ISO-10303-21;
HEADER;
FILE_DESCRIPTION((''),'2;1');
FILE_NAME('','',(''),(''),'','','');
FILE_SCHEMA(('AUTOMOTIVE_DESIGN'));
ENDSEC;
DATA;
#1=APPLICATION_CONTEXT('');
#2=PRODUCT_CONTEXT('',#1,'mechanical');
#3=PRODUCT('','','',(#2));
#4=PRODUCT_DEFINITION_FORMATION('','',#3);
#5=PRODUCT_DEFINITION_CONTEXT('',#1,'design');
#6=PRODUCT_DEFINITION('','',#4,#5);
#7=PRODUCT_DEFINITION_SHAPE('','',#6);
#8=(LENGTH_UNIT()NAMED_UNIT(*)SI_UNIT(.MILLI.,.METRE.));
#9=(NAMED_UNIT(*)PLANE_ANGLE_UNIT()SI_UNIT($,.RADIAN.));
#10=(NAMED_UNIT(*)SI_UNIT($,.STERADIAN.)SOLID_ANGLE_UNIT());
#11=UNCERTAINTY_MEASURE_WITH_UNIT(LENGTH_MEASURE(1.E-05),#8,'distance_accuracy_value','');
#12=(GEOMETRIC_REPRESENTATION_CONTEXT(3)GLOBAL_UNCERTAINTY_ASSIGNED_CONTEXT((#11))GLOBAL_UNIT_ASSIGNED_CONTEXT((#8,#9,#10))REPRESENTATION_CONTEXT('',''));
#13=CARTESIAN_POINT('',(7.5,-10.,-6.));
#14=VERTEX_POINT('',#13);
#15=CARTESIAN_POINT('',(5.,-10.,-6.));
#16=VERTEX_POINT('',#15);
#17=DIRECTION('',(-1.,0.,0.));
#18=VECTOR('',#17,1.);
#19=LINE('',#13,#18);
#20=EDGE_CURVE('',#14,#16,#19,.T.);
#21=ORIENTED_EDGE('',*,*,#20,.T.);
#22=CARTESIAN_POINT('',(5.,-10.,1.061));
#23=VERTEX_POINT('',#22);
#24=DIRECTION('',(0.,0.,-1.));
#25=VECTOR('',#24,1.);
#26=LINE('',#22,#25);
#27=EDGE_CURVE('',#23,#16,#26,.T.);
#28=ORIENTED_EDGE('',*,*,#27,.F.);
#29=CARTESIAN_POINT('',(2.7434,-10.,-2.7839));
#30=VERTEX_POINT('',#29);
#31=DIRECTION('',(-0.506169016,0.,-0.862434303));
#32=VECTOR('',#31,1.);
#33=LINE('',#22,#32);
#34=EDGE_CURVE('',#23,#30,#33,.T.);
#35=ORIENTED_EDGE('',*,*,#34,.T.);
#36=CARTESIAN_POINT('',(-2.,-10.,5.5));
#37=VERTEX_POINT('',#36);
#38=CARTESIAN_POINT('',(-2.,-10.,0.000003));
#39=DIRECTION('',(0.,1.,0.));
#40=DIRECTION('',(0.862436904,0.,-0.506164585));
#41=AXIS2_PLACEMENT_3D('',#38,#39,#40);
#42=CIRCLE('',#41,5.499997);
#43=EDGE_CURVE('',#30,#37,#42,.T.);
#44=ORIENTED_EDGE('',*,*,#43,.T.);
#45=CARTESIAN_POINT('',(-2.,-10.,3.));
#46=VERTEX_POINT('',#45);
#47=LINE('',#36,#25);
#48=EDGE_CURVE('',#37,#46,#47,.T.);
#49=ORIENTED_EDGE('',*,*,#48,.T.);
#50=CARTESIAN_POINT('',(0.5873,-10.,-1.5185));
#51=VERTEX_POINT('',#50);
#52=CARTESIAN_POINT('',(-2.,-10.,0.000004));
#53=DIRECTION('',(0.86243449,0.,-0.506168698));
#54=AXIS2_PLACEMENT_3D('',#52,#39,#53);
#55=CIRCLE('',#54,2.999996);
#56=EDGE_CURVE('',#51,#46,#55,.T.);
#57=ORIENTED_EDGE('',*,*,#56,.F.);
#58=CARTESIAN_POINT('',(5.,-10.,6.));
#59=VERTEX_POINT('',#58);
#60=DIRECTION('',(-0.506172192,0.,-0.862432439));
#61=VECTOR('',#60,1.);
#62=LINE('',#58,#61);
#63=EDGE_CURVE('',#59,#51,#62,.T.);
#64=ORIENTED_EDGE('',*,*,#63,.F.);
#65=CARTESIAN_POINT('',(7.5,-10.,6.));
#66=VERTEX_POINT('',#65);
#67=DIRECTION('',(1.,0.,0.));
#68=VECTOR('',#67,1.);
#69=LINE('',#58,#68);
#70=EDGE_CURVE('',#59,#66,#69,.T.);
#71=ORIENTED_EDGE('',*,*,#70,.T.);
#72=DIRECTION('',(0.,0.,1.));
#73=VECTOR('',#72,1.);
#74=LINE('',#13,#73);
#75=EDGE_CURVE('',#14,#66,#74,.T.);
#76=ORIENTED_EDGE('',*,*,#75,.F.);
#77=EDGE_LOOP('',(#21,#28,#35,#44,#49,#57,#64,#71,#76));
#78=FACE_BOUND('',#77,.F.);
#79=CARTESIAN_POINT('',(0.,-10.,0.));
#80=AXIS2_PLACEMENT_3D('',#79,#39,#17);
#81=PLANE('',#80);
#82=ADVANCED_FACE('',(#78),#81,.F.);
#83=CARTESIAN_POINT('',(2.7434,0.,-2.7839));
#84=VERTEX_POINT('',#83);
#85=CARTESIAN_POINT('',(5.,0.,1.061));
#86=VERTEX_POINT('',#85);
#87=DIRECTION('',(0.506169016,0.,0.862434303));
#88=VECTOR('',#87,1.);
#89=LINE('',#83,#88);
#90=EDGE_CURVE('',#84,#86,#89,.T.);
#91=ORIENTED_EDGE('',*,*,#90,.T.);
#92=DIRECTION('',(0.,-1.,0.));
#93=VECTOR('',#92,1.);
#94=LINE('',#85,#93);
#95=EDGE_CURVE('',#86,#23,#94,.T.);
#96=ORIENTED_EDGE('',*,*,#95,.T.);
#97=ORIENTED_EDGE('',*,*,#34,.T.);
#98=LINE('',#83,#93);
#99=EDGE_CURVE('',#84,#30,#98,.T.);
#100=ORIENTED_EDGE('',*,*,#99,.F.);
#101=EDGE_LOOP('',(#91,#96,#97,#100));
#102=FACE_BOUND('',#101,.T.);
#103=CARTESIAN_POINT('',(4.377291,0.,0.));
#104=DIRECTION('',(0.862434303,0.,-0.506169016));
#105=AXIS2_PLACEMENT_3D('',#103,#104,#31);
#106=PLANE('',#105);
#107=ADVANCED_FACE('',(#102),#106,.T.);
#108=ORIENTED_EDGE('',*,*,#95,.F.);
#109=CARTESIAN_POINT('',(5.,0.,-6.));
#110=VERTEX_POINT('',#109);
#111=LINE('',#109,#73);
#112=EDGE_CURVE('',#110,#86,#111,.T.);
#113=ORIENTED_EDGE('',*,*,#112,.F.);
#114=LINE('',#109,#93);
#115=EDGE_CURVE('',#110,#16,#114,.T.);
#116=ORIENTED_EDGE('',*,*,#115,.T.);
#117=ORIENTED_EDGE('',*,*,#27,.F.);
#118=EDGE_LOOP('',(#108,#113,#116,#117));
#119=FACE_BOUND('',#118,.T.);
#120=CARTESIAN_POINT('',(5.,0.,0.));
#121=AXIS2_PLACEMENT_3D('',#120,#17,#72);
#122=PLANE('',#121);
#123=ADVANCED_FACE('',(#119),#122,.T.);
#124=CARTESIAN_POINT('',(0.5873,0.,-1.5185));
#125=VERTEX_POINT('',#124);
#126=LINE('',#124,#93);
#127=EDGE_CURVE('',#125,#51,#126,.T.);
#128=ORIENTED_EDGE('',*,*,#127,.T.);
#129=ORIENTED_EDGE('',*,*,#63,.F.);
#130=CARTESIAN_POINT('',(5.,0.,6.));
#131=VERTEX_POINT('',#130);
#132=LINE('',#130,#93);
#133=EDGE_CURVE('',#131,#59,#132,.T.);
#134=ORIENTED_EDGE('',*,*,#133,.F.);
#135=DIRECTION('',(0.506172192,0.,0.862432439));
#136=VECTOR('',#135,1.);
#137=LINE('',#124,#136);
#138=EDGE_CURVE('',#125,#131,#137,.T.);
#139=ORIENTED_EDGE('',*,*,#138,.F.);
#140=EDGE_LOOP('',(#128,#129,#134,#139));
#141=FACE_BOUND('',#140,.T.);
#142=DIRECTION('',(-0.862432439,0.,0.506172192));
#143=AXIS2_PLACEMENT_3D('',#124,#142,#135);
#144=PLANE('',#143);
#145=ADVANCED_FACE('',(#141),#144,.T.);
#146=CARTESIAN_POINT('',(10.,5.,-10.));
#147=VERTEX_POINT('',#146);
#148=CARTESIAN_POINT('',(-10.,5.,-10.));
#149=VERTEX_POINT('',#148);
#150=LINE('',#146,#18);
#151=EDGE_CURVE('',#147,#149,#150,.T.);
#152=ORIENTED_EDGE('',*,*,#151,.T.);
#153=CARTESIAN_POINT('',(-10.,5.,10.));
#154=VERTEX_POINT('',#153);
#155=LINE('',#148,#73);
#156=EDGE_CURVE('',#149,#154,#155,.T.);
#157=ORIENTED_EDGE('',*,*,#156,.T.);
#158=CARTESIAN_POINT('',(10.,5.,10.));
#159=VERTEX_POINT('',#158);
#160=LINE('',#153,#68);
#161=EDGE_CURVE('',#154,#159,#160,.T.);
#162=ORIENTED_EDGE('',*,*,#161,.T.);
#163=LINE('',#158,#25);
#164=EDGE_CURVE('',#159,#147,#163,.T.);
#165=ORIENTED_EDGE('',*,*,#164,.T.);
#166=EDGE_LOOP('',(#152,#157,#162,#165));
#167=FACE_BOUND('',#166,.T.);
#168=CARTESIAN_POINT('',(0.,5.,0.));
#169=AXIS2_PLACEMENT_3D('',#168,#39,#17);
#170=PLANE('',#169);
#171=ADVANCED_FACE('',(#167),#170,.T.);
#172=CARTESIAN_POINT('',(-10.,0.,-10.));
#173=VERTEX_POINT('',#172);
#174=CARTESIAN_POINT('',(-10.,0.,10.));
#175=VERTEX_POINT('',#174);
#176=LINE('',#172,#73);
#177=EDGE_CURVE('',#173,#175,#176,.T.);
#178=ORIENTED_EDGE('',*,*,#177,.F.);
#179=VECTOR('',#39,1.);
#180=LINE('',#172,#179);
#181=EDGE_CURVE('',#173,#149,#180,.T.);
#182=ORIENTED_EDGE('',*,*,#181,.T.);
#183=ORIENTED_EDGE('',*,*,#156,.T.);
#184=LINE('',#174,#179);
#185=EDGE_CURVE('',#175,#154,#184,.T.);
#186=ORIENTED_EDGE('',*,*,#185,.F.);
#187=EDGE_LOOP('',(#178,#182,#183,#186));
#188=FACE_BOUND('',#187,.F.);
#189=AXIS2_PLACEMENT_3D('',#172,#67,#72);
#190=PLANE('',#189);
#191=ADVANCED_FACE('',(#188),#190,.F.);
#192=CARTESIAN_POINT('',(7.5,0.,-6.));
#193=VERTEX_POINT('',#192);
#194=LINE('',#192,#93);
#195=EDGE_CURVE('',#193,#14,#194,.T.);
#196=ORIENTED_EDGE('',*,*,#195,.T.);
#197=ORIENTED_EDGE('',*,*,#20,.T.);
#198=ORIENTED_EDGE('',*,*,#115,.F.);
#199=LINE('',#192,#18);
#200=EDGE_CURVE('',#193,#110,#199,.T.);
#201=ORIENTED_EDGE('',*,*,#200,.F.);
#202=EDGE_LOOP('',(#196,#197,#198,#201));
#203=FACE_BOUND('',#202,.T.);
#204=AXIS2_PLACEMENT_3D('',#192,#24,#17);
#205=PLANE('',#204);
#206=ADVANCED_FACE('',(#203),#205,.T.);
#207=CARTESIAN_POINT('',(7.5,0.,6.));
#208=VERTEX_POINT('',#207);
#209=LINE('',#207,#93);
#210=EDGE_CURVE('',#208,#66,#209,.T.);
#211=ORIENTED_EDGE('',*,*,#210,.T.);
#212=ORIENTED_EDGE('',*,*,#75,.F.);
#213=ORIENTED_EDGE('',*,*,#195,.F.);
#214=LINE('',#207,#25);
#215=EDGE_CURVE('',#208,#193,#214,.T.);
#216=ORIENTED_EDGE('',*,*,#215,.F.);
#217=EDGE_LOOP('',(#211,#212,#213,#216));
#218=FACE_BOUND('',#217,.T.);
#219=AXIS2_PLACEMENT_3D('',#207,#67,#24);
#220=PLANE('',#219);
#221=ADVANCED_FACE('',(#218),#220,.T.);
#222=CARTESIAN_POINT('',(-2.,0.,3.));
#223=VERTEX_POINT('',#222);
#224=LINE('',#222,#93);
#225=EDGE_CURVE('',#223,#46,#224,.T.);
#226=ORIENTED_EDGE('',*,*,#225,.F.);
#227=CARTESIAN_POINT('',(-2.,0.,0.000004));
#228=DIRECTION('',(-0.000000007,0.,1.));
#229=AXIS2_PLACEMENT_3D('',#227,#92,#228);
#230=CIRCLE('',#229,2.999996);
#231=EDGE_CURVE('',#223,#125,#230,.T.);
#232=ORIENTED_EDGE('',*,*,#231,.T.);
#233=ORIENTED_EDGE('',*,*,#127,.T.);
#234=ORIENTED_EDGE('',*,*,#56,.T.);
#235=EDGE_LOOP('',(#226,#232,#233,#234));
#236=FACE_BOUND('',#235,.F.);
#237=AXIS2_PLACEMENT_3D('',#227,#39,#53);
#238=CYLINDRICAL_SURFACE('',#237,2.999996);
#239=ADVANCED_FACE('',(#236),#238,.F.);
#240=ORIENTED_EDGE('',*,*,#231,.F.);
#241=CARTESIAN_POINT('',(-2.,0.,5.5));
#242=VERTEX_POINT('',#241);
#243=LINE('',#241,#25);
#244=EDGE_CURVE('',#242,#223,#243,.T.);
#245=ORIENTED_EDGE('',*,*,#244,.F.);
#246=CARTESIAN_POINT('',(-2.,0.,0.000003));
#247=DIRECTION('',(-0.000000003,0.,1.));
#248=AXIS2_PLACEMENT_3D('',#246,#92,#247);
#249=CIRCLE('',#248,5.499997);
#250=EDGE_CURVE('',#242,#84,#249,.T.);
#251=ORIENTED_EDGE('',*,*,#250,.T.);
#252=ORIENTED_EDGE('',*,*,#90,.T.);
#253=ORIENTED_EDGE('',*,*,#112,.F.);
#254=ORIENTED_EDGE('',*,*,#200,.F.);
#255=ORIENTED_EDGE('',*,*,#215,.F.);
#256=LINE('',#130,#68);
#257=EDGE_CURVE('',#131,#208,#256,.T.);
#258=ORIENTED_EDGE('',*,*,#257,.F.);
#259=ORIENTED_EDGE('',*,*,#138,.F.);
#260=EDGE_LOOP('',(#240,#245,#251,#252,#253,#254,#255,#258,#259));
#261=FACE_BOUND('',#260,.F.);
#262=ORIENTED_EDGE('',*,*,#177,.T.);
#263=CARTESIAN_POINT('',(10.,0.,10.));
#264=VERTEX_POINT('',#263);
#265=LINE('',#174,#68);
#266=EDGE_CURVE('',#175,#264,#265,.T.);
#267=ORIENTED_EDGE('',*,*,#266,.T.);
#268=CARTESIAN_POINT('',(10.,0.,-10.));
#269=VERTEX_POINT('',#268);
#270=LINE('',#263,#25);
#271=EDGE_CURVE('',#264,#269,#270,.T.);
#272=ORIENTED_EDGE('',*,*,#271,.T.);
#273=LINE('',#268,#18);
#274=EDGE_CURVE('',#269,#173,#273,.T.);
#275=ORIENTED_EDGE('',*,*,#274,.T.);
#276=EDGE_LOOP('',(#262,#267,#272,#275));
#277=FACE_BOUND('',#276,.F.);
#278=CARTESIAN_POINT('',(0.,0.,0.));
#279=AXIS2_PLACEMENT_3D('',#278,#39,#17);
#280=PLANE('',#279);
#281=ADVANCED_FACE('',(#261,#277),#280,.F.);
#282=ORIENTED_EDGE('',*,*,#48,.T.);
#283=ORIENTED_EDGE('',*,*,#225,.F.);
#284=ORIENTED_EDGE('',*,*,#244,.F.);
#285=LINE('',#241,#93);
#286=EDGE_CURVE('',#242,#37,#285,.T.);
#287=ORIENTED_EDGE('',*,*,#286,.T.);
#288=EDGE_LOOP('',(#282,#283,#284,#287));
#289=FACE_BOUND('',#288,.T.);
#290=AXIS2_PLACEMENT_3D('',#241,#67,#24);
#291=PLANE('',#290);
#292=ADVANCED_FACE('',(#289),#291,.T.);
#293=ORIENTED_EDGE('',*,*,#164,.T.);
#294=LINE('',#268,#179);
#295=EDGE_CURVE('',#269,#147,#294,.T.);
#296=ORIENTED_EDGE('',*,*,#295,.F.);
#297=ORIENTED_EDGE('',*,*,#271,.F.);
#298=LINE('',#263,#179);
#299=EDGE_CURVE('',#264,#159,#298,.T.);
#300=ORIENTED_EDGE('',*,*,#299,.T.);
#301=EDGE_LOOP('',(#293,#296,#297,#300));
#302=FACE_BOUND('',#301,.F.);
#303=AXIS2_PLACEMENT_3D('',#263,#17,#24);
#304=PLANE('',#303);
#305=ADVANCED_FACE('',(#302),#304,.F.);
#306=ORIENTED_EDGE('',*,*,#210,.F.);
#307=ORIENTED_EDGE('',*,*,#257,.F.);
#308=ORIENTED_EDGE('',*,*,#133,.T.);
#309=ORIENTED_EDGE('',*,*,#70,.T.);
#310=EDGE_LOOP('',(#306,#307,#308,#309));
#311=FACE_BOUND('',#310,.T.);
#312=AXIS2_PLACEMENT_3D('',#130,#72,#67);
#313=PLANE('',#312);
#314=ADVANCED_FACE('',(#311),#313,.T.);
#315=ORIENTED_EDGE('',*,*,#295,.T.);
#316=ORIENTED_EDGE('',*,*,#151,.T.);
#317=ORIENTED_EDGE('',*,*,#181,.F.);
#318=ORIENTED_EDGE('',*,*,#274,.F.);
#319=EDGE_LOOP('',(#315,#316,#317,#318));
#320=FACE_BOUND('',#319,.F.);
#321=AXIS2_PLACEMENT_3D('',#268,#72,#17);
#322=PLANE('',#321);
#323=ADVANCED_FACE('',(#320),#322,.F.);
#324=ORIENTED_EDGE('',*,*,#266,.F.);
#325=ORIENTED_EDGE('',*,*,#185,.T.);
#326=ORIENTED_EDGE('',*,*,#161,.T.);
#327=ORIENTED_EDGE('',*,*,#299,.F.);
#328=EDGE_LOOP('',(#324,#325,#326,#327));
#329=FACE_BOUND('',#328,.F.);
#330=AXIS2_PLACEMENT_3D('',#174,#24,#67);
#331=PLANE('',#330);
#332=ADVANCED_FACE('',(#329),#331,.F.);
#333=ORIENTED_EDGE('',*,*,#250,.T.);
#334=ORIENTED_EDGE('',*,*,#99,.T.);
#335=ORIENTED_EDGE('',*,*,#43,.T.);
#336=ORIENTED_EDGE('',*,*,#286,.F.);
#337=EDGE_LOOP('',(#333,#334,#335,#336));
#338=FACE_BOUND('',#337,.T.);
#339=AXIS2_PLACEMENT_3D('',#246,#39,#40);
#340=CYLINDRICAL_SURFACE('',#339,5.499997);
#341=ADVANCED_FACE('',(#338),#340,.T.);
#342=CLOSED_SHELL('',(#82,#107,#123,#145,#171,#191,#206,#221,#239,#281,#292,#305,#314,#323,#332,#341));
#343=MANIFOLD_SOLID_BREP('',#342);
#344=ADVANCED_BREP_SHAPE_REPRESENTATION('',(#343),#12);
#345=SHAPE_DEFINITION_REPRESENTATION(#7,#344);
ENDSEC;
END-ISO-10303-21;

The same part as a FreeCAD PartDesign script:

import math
import FreeCAD as App
import Part
import Sketcher

doc = App.newDocument("Part")
body = doc.addObject("PartDesign::Body", "Body")

# Sketch on XZ plane
sketch1 = doc.addObject("Sketcher::SketchObject", "Sketch")
body.addObject(sketch1)
sketch1.AttachmentSupport = (doc.XZ_Plane, [""])
sketch1.MapMode = "FlatFace"
sketch1.addGeometry(Part.LineSegment(App.Vector(10, 10, 0), App.Vector(10, -10, 0)), False)
sketch1.addGeometry(Part.LineSegment(App.Vector(10, -10, 0), App.Vector(-10, -10, 0)), False)
sketch1.addGeometry(Part.LineSegment(App.Vector(-10, -10, 0), App.Vector(-10, 10, 0)), False)
sketch1.addGeometry(Part.LineSegment(App.Vector(-10, 10, 0), App.Vector(10, 10, 0)), False)
sketch1.addConstraint(Sketcher.Constraint("Coincident", 0, 2, 1, 1))
sketch1.addConstraint(Sketcher.Constraint("Coincident", 1, 2, 2, 1))
sketch1.addConstraint(Sketcher.Constraint("Coincident", 2, 2, 3, 1))
sketch1.addConstraint(Sketcher.Constraint("Coincident", 3, 2, 0, 1))
sketch1.addConstraint(Sketcher.Constraint("Vertical", 0))
sketch1.addConstraint(Sketcher.Constraint("Horizontal", 1))
sketch1.addConstraint(Sketcher.Constraint("Vertical", 2))
sketch1.addConstraint(Sketcher.Constraint("Horizontal", 3))
sketch1.addConstraint(Sketcher.Constraint("Symmetric", 0, 2, 2, 2, -1, 1))
sketch1.addConstraint(Sketcher.Constraint("Equal", 3, 0))
sketch1.addConstraint(Sketcher.Constraint("DistanceX", 1, 2, 1, 1, 20.0))
pad1 = doc.addObject("PartDesign::Pad", "Pad")
body.addObject(pad1)
pad1.Profile = sketch1
pad1.Length = 5
pad1.Reversed = True

# Sketch on XZ plane
sketch2 = doc.addObject("Sketcher::SketchObject", "Sketch001")
body.addObject(sketch2)
sketch2.AttachmentSupport = (doc.XZ_Plane, [""])
sketch2.MapMode = "FlatFace"
sketch2.addGeometry(Part.ArcOfCircle(Part.Circle(App.Vector(-2, 0, 0), App.Vector(0, 0, 1), 5.5), math.radians(90), math.radians(330)), False)
sketch2.addGeometry(Part.LineSegment(App.Vector(-2, 5.5, 0), App.Vector(-2, 3, 0)), False)
sketch2.addGeometry(Part.ArcOfCircle(Part.Circle(App.Vector(-2, 0, 0), App.Vector(0, 0, 1), 3), math.radians(90), math.radians(330)), False)
sketch2.addGeometry(Part.LineSegment(App.Vector(0.6, -1.5, 0), App.Vector(5, 6, 0)), False)
sketch2.addGeometry(Part.LineSegment(App.Vector(5, 6, 0), App.Vector(7.5, 6, 0)), False)
sketch2.addGeometry(Part.LineSegment(App.Vector(7.5, 6, 0), App.Vector(7.5, -6, 0)), False)
sketch2.addGeometry(Part.LineSegment(App.Vector(7.5, -6, 0), App.Vector(5, -6, 0)), False)
sketch2.addGeometry(Part.LineSegment(App.Vector(5, -6, 0), App.Vector(5, 1.1, 0)), False)
sketch2.addGeometry(Part.LineSegment(App.Vector(5, 1.1, 0), App.Vector(2.7, -2.8, 0)), False)
sketch2.addConstraint(Sketcher.Constraint("Coincident", 0, 1, 1, 1))
sketch2.addConstraint(Sketcher.Constraint("Coincident", 1, 2, 2, 1))
sketch2.addConstraint(Sketcher.Constraint("Tangent", 2, 2, 3, 1))
sketch2.addConstraint(Sketcher.Constraint("Coincident", 3, 2, 4, 1))
sketch2.addConstraint(Sketcher.Constraint("Coincident", 4, 2, 5, 1))
sketch2.addConstraint(Sketcher.Constraint("Coincident", 5, 2, 6, 1))
sketch2.addConstraint(Sketcher.Constraint("Coincident", 6, 2, 7, 1))
sketch2.addConstraint(Sketcher.Constraint("Coincident", 7, 2, 8, 1))
sketch2.addConstraint(Sketcher.Constraint("Tangent", 8, 2, 0, 2))
sketch2.addConstraint(Sketcher.Constraint("Vertical", 1))
sketch2.addConstraint(Sketcher.Constraint("Horizontal", 4))
sketch2.addConstraint(Sketcher.Constraint("Vertical", 5))
sketch2.addConstraint(Sketcher.Constraint("Horizontal", 6))
sketch2.addConstraint(Sketcher.Constraint("Vertical", 7))
sketch2.addConstraint(Sketcher.Constraint("Coincident", 2, 3, 0, 3))
sketch2.addConstraint(Sketcher.Constraint("Symmetric", 3, 2, 6, 2, -1))
sketch2.addConstraint(Sketcher.Constraint("PointOnObject", 0, 3, -1))
sketch2.addConstraint(Sketcher.Constraint("Parallel", 3, 8))
sketch2.addConstraint(Sketcher.Constraint("Vertical", 2, 3, 0, 1))
sketch2.addConstraint(Sketcher.Constraint("Equal", 6, 1))
sketch2.addConstraint(Sketcher.Constraint("Radius", 2, 3.0))
sketch2.addConstraint(Sketcher.Constraint("DistanceY", 5, 2, 5, 1, 12.0))
sketch2.addConstraint(Sketcher.Constraint("DistanceX", 4, 1, 4, 2, 2.5))
sketch2.addConstraint(Sketcher.Constraint("DistanceX", 0, 3, -1, 1, 2.0))
sketch2.addConstraint(Sketcher.Constraint("DistanceX", -1, 1, 3, 2, 5.0))
pad2 = doc.addObject("PartDesign::Pad", "Pad001")
body.addObject(pad2)
pad2.Profile = sketch2
pad2.Length = 10

doc.recompute()
